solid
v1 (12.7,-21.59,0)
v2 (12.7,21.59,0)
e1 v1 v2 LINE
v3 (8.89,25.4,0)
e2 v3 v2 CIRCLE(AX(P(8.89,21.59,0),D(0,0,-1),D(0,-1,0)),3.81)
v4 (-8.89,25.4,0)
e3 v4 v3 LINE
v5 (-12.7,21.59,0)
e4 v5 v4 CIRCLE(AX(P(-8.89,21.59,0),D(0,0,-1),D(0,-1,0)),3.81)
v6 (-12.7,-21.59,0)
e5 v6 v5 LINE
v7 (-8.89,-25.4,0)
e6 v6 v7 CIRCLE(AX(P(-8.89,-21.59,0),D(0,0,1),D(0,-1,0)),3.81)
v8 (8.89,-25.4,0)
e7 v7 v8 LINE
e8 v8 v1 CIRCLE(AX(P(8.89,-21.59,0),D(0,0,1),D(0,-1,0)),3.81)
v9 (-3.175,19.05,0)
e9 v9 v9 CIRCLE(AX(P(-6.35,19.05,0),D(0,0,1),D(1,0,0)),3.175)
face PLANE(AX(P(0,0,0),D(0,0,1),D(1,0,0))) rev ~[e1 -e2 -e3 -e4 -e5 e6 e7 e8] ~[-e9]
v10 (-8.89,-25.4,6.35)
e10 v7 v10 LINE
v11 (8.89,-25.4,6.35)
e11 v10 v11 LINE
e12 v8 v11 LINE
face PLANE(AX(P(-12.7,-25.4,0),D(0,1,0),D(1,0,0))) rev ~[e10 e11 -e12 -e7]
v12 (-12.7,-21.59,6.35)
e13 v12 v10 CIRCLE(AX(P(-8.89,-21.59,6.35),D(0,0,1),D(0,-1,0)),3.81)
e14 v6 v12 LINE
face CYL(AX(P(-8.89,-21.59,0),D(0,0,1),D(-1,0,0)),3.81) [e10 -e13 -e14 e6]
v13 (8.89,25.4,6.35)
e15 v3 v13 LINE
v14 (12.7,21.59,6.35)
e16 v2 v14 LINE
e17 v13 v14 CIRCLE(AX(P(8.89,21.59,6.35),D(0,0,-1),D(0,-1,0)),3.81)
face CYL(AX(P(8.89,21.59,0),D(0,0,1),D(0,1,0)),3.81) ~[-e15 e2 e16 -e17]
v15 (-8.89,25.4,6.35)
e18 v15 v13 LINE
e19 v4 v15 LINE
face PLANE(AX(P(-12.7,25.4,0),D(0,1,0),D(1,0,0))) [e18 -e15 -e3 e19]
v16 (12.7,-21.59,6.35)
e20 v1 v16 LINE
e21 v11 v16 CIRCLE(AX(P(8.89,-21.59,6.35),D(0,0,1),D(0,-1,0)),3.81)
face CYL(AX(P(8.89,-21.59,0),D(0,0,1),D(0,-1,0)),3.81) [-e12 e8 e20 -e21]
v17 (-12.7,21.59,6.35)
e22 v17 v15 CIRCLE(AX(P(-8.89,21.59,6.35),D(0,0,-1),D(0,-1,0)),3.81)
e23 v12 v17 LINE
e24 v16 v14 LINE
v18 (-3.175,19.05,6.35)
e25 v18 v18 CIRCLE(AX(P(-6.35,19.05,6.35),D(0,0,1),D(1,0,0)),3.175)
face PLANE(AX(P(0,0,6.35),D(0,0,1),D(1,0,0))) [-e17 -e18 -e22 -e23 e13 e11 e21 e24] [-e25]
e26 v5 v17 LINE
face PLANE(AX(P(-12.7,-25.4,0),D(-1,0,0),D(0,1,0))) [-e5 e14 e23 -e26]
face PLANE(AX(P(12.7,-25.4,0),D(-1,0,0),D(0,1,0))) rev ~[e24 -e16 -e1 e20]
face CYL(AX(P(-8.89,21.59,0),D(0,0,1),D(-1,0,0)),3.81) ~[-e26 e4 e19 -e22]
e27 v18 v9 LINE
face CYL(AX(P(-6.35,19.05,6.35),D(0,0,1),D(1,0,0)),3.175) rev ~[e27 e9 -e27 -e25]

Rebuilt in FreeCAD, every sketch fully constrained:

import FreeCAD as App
import Part
import Sketcher
from FreeCAD import Vector
Q = App.Units.Quantity


def edges_at(feature, points):
    """Names of the edges that pass closest to the given points."""
    edges = feature.Shape.Edges
    near = lambda p: min(range(len(edges)), key=lambda i: edges[i].distToShape(Part.Vertex(*p))[0])
    return sorted({f"Edge{near(p) + 1}" for p in points})


def add_polygon(sketch, points):
    """Adds a closed chain of lines whose ends are joined by coincident constraints."""
    first, n = sketch.GeometryCount, len(points)
    for a, b in zip(points, points[1:] + points[:1]):
        sketch.addGeometry(Part.LineSegment(App.Vector(*a, 0), App.Vector(*b, 0)), False)
    for i in range(n):
        sketch.addConstraint(Sketcher.Constraint("Coincident", first + i, 2, first + (i + 1) % n, 1))

doc = App.newDocument("Part")
body = doc.addObject("PartDesign::Body", "Body")

# Sketch on XY plane
sketch1 = body.newObject("Sketcher::SketchObject", "Sketch")
sketch1.AttachmentSupport = (doc.getObject("XY_Plane"), [""])
sketch1.MapMode = "FlatFace"
add_polygon(sketch1, [(-13, 25), (-13, -25), (13, -25), (13, 25)])  # lines 0-3
sketch1.addConstraint([
    Sketcher.Constraint("Vertical", 0),
    Sketcher.Constraint("Horizontal", 1),
    Sketcher.Constraint("Vertical", 2),
    Sketcher.Constraint("Horizontal", 3),
    Sketcher.Constraint("Symmetric", 0, 2, 2, 2, -1, 1),
    Sketcher.Constraint("DistanceX", 1, 1, 1, 2, Q("1 in")),
    Sketcher.Constraint("DistanceY", 0, 2, 0, 1, Q("2 in")),
])
pad1 = body.newObject("PartDesign::Pad", "Pad")
pad1.Profile = sketch1
pad1.Length = Q("0.25 in")

# Sketch on XY plane
sketch2 = body.newObject("Sketcher::SketchObject", "Sketch001")
sketch2.AttachmentSupport = (doc.getObject("XY_Plane"), [""])
sketch2.MapMode = "FlatFace"
sketch2.AttachmentOffset = App.Placement(Vector(0, 0, 0.25 * 25.4), App.Rotation())
sketch2.addGeometry(Part.Circle(Vector(-6.3, 19.1, 0), Vector(0, 0, 1), 3.2), False)
sketch2.addConstraint([
    Sketcher.Constraint("Diameter", 0, Q("0.25 in")),
    Sketcher.Constraint("DistanceX", 0, 3, -1, 1, Q("0.25 in")),
    Sketcher.Constraint("DistanceY", -1, 1, 0, 3, Q("0.75 in")),
])
pocket1 = body.newObject("PartDesign::Pocket", "Pocket")
pocket1.Profile = sketch2
pocket1.Length = Q("1 in")
doc.recompute()

fillet = body.newObject("PartDesign::Fillet", "Fillet")
fillet.Base = (pocket1, edges_at(pocket1, [
    (-12.7, 25.4, 3.175),
    (12.7, 25.4, 3.175),
    (-12.7, -25.4, 3.175),
    (12.7, -25.4, 3.175),
]))
fillet.Radius = Q("0.15 in")

doc.recompute()
